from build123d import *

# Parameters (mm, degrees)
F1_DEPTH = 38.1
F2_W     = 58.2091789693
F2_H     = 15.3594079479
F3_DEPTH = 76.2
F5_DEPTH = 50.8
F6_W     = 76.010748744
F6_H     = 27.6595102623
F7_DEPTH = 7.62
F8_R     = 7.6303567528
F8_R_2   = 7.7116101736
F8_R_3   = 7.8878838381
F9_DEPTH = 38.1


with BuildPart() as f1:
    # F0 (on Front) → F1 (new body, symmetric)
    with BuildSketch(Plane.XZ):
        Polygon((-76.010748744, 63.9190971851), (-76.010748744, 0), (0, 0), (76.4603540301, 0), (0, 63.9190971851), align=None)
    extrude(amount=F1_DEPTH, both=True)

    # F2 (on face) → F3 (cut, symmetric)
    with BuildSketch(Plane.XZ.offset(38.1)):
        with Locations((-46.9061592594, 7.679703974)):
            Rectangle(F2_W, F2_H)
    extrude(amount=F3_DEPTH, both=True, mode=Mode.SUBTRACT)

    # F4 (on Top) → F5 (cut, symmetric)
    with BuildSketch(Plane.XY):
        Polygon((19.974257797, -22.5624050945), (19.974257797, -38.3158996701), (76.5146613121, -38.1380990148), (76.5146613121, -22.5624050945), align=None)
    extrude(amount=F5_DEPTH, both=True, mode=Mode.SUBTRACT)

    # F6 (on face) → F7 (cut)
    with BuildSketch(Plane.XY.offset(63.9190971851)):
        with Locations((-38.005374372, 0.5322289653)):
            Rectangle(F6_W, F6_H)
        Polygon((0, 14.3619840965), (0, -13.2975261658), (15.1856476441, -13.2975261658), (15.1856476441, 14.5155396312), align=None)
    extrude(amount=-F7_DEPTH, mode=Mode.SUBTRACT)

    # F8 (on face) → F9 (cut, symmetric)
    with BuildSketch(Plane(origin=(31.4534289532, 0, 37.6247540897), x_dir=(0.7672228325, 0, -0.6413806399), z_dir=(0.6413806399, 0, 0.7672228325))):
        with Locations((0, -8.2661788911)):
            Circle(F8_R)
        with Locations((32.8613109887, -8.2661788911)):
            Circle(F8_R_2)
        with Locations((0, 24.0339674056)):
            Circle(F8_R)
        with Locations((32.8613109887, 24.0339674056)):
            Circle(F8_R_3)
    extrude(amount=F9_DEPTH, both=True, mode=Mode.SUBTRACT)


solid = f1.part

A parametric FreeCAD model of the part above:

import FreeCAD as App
import Part
import Sketcher
from FreeCAD import Vector
Q = App.Units.Quantity


def add_polygon(sketch, points):
    """Adds a closed chain of lines whose ends are joined by coincident constraints."""
    first, n = sketch.GeometryCount, len(points)
    for a, b in zip(points, points[1:] + points[:1]):
        sketch.addGeometry(Part.LineSegment(App.Vector(*a, 0), App.Vector(*b, 0)), False)
    for i in range(n):
        sketch.addConstraint(Sketcher.Constraint("Coincident", first + i, 2, first + (i + 1) % n, 1))

doc = App.newDocument("Part")
params = doc.addObject("Spreadsheet::Sheet", "Params")
for row, (alias, value) in enumerate([
    ("pad1_length", "3 in"),
    ("pocket1_length", "6 in"),
    ("sketch3_width", "2.2260001 in"),
    ("pocket2_length", "4 in"),
    ("pocket3_length", "0.3 in"),
    ("pocket4_length", "3 in"),
], start=1):
    params.set(f"A{row}", alias)
    params.set(f"B{row}", "=" + value)
    params.setAlias(f"B{row}", alias)

body = doc.addObject("PartDesign::Body", "Body")

# Sketch on XZ plane
sketch1 = doc.addObject("Sketcher::SketchObject", "Sketch")
body.addObject(sketch1)
sketch1.AttachmentSupport = (doc.XZ_Plane, [""])
sketch1.MapMode = "FlatFace"
add_polygon(sketch1, [(-76, 64), (-76, 0), (76, 0), (0, 64)])  # lines 0-3
sketch1.addConstraint([
    Sketcher.Constraint("Vertical", 0),
    Sketcher.Constraint("Horizontal", 1),
    Sketcher.Constraint("Horizontal", 3),
    Sketcher.Constraint("PointOnObject", 0, 2, -1),
    Sketcher.Constraint("PointOnObject", 2, 2, -2),
    Sketcher.Constraint("DistanceY", 0, 2, 0, 1, Q("2.5164999 in")),
    Sketcher.Constraint("Distance", 2, Q("99.658601 mm")),
    Sketcher.Constraint("DistanceX", 3, 2, 3, 1, Q("76.010749 mm")),
])
pad1 = doc.addObject("PartDesign::Pad", "Pad")
body.addObject(pad1)
pad1.Profile = sketch1
pad1.setExpression("Length", "Params.pad1_length")
pad1.Midplane = True

# Sketch on XZ plane
sketch2 = doc.addObject("Sketcher::SketchObject", "Sketch001")
body.addObject(sketch2)
sketch2.AttachmentSupport = (doc.XZ_Plane, [""])
sketch2.MapMode = "FlatFace"
sketch2.AttachmentOffset = App.Placement(Vector(0, 0, 1.5 * 25.4), App.Rotation())
add_polygon(sketch2, [(-76, 15), (-76, 0), (-18, 0), (-18, 15)])  # lines 0-3
sketch2.addConstraint([
    Sketcher.Constraint("Vertical", 0),
    Sketcher.Constraint("Horizontal", 1),
    Sketcher.Constraint("Vertical", 2),
    Sketcher.Constraint("Horizontal", 3),
    Sketcher.Constraint("PointOnObject", 0, 2, -1),
    Sketcher.Constraint("DistanceX", 1, 1, 1, 2, Q("2.2917 in")),
    Sketcher.Constraint("DistanceY", 0, 2, 0, 1, Q("15.359408 mm")),
    Sketcher.Constraint("DistanceX", 0, 2, -1, 1, Q("76.010749 mm")),
])
pocket1 = doc.addObject("PartDesign::Pocket", "Pocket")
body.addObject(pocket1)
pocket1.Profile = sketch2
pocket1.setExpression("Length", "Params.pocket1_length")
pocket1.Midplane = True

# Sketch on XY plane
sketch3 = doc.addObject("Sketcher::SketchObject", "Sketch002")
body.addObject(sketch3)
sketch3.AttachmentSupport = (doc.XY_Plane, [""])
sketch3.MapMode = "FlatFace"
add_polygon(sketch3, [(20, -23), (20, -38), (77, -38), (77, -23)])  # lines 0-3
sketch3.addConstraint([
    Sketcher.Constraint("Vertical", 0),
    Sketcher.Constraint("Vertical", 2),
    Sketcher.Constraint("Horizontal", 3),
    Sketcher.Constraint("DistanceX", 3, 2, 3, 1, Q("2.2260001 in")),
    Sketcher.Constraint("DistanceY", 0, 2, 1, 2, Q("0.007 in")),
    Sketcher.Constraint("DistanceY", 0, 2, -1, 1, Q("1.5085 in")),
    Sketcher.Constraint("DistanceY", 0, 2, 0, 1, Q("15.753495 mm")),
    Sketcher.Constraint("DistanceX", -1, 1, 1, 2, Q("76.514661 mm")),
])
sketch3.setExpression("Constraints[7]", "Params.sketch3_width")
pocket2 = doc.addObject("PartDesign::Pocket", "Pocket001")
body.addObject(pocket2)
pocket2.Profile = sketch3
pocket2.setExpression("Length", "Params.pocket2_length")
pocket2.Midplane = True

# Sketch on XY plane
sketch4 = doc.addObject("Sketcher::SketchObject", "Sketch003")
body.addObject(sketch4)
sketch4.AttachmentSupport = (doc.XY_Plane, [""])
sketch4.MapMode = "FlatFace"
sketch4.AttachmentOffset = App.Placement(Vector(0, 0, 2.5164999 * 25.4), App.Rotation())
add_polygon(sketch4, [(-76, 14), (-76, -13), (15, -13), (15, 15), (0, 14)])  # lines 0-4
sketch4.addConstraint([
    Sketcher.Constraint("Vertical", 0),
    Sketcher.Constraint("Horizontal", 1),
    Sketcher.Constraint("Vertical", 2),
    Sketcher.Constraint("Horizontal", 4),
    Sketcher.Constraint("PointOnObject", 3, 2, -2),
    Sketcher.Constraint("DistanceX", 4, 2, 4, 1, Q("76.010749 mm")),
    Sketcher.Constraint("DistanceY", 0, 2, 0, 1, Q("27.65951 mm")),
    Sketcher.Constraint("DistanceX", 1, 1, 1, 2, Q("91.196396 mm")),
    Sketcher.Constraint("DistanceY", 2, 1, 2, 2, Q("27.813066 mm")),
    Sketcher.Constraint("DistanceY", -1, 1, 2, 2, Q("14.51554 mm")),
])
pocket3 = doc.addObject("PartDesign::Pocket", "Pocket002")
body.addObject(pocket3)
pocket3.Profile = sketch4
pocket3.setExpression("Length", "Params.pocket3_length")

# Sketch on an angled plane
sketch5 = doc.addObject("Sketcher::SketchObject", "Sketch004")
body.addObject(sketch5)
sketch5.Placement = App.Placement(Vector(31.453429, 0, 37.624754), App.Rotation(Vector(0.767222833, 0, -0.64138064), Vector(0, 1.000000001, 0), Vector(0.64138064, 0, 0.767222833), "ZXY"))
sketch5.addGeometry([
    Part.Circle(Vector(0, -8, 0), Vector(0, 0, 1), 8),
    Part.Circle(Vector(33, -8, 0), Vector(0, 0, 1), 8),
    Part.Circle(Vector(0, 24, 0), Vector(0, 0, 1), 8),
    Part.Circle(Vector(33, 24, 0), Vector(0, 0, 1), 8),
], False)
sketch5.addConstraint([
    Sketcher.Constraint("Equal", 0, 2),
    Sketcher.Constraint("PointOnObject", 0, 3, -2),
    Sketcher.Constraint("PointOnObject", 2, 3, -2),
    Sketcher.Constraint("Horizontal", 0, 3, 1, 3),
    Sketcher.Constraint("Horizontal", 2, 3, 3, 3),
    Sketcher.Constraint("Vertical", 1, 3, 3, 3),
    Sketcher.Constraint("Diameter", 1, Q("15.42322 mm")),
    Sketcher.Constraint("Diameter", 0, Q("15.260714 mm")),
    Sketcher.Constraint("Diameter", 3, Q("15.775768 mm")),
    Sketcher.Constraint("DistanceY", 0, 3, -1, 1, Q("8.266179 mm")),
    Sketcher.Constraint("DistanceX", -1, 1, 1, 3, Q("32.861311 mm")),
    Sketcher.Constraint("DistanceY", -1, 1, 2, 3, Q("24.033967 mm")),
])
pocket4 = doc.addObject("PartDesign::Pocket", "Pocket003")
body.addObject(pocket4)
pocket4.Profile = sketch5
pocket4.setExpression("Length", "Params.pocket4_length")
pocket4.Midplane = True

doc.recompute()
